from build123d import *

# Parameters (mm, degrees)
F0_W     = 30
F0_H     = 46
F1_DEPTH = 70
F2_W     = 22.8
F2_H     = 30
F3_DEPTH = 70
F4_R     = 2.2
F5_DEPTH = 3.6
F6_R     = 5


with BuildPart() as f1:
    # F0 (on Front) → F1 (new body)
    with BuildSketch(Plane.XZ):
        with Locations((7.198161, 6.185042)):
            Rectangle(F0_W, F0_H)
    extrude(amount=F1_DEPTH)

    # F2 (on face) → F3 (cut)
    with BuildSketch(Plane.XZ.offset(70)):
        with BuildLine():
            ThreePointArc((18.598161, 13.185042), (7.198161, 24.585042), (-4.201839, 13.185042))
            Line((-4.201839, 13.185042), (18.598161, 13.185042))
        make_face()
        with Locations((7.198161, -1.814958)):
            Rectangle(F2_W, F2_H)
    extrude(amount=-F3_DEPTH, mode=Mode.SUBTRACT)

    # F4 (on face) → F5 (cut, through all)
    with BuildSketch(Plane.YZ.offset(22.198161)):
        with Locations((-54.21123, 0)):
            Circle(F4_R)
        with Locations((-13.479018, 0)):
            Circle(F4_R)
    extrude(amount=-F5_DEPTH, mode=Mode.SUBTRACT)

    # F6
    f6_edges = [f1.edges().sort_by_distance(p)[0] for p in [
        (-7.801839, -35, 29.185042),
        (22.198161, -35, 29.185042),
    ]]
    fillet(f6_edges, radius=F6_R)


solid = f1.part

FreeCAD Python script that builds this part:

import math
import FreeCAD as App
import Part
import Sketcher
from FreeCAD import Vector
Q = App.Units.Quantity


def edges_at(feature, points):
    """Names of the edges that pass closest to the given points."""
    edges = feature.Shape.Edges
    near = lambda p: min(range(len(edges)), key=lambda i: edges[i].distToShape(Part.Vertex(*p))[0])
    return sorted({f"Edge{near(p) + 1}" for p in points})

doc = App.newDocument("Part")
body = doc.addObject("PartDesign::Body", "Body")

sketch1 = doc.addObject("Sketcher::SketchObject", "Sketch")
body.addObject(sketch1)
sketch1.AttachmentSupport = (doc.XZ_Plane, [""])
sketch1.MapMode = "FlatFace"
sketch1.addGeometry([
    Part.LineSegment(Vector(-8, 29, 0), Vector(-8, -17, 0)),
    Part.LineSegment(Vector(-8, -17, 0), Vector(22, -17, 0)),
    Part.LineSegment(Vector(22, -17, 0), Vector(22, 29, 0)),
    Part.LineSegment(Vector(22, 29, 0), Vector(-8, 29, 0)),
], False)
sketch1.addConstraint([
    Sketcher.Constraint("Coincident", 0, 2, 1, 1),
    Sketcher.Constraint("Coincident", 1, 2, 2, 1),
    Sketcher.Constraint("Coincident", 2, 2, 3, 1),
    Sketcher.Constraint("Coincident", 3, 2, 0, 1),
    Sketcher.Constraint("Vertical", 0),
    Sketcher.Constraint("Horizontal", 1),
    Sketcher.Constraint("Vertical", 2),
    Sketcher.Constraint("Horizontal", 3),
    Sketcher.Constraint("DistanceX", 1, 1, 1, 2, Q("30 mm")),
    Sketcher.Constraint("DistanceY", 0, 2, 0, 1, Q("46 mm")),
    Sketcher.Constraint("DistanceX", 0, 2, -1, 1, Q("7.801839 mm")),
    Sketcher.Constraint("DistanceY", 0, 2, -1, 1, Q("16.814958 mm")),
])
pad1 = doc.addObject("PartDesign::Pad", "Pad")
body.addObject(pad1)
pad1.Profile = sketch1
pad1.Length = 70

sketch2 = doc.addObject("Sketcher::SketchObject", "Sketch001")
body.addObject(sketch2)
sketch2.AttachmentSupport = (doc.XZ_Plane, [""])
sketch2.MapMode = "FlatFace"
sketch2.AttachmentOffset = App.Placement(Vector(0, 0, 70), App.Rotation())
sketch2.addGeometry([
    Part.ArcOfCircle(Part.Circle(Vector(7, 13, 0), Vector(0, 0, 1), 11), math.radians(0), math.radians(180)),
    Part.LineSegment(Vector(-4, 13, 0), Vector(-4, -17, 0)),
    Part.LineSegment(Vector(-4, -17, 0), Vector(19, -17, 0)),
    Part.LineSegment(Vector(19, -17, 0), Vector(19, 13, 0)),
], False)
sketch2.addConstraint([
    Sketcher.Constraint("Tangent", 0, 2, 1, 1),
    Sketcher.Constraint("Coincident", 1, 2, 2, 1),
    Sketcher.Constraint("Coincident", 2, 2, 3, 1),
    Sketcher.Constraint("Tangent", 3, 2, 0, 1),
    Sketcher.Constraint("Vertical", 1),
    Sketcher.Constraint("Horizontal", 2),
    Sketcher.Constraint("Vertical", 3),
    Sketcher.Constraint("Radius", 0, Q("11.4 mm")),
    Sketcher.Constraint("DistanceY", 1, 2, 1, 1, Q("30 mm")),
    Sketcher.Constraint("DistanceX", -1, 1, 0, 3, Q("7.198161 mm")),
    Sketcher.Constraint("DistanceY", -1, 1, 0, 3, Q("13.185042 mm")),
])
pocket1 = doc.addObject("PartDesign::Pocket", "Pocket")
body.addObject(pocket1)
pocket1.Profile = sketch2
pocket1.Length = 70

sketch3 = doc.addObject("Sketcher::SketchObject", "Sketch002")
body.addObject(sketch3)
sketch3.AttachmentSupport = (doc.YZ_Plane, [""])
sketch3.MapMode = "FlatFace"
sketch3.AttachmentOffset = App.Placement(Vector(0, 0, 22.198161), App.Rotation())
sketch3.addGeometry([
    Part.Circle(Vector(-54.2, 0, 0), Vector(0, 0, 1), 2.2),
    Part.Circle(Vector(-13.5, 0, 0), Vector(0, 0, 1), 2.2),
], False)
sketch3.addConstraint([
    Sketcher.Constraint("Equal", 0, 1),
    Sketcher.Constraint("PointOnObject", 0, 3, -1),
    Sketcher.Constraint("PointOnObject", 1, 3, -1),
    Sketcher.Constraint("Diameter", 0, Q("4.4 mm")),
    Sketcher.Constraint("DistanceX", 0, 3, -1, 1, Q("54.21123 mm")),
    Sketcher.Constraint("DistanceX", 1, 3, -1, 1, Q("13.479018 mm")),
])
pocket2 = doc.addObject("PartDesign::Pocket", "Pocket001")
body.addObject(pocket2)
pocket2.Profile = sketch3
pocket2.Length = 3.6
doc.recompute()

fillet = doc.addObject("PartDesign::Fillet", "Fillet")
body.addObject(fillet)
fillet.Base = (pocket2, edges_at(pocket2, [(-7.802, -35, 29.185), (22.198, -35, 29.185)]))
fillet.Radius = 5

doc.recompute()
